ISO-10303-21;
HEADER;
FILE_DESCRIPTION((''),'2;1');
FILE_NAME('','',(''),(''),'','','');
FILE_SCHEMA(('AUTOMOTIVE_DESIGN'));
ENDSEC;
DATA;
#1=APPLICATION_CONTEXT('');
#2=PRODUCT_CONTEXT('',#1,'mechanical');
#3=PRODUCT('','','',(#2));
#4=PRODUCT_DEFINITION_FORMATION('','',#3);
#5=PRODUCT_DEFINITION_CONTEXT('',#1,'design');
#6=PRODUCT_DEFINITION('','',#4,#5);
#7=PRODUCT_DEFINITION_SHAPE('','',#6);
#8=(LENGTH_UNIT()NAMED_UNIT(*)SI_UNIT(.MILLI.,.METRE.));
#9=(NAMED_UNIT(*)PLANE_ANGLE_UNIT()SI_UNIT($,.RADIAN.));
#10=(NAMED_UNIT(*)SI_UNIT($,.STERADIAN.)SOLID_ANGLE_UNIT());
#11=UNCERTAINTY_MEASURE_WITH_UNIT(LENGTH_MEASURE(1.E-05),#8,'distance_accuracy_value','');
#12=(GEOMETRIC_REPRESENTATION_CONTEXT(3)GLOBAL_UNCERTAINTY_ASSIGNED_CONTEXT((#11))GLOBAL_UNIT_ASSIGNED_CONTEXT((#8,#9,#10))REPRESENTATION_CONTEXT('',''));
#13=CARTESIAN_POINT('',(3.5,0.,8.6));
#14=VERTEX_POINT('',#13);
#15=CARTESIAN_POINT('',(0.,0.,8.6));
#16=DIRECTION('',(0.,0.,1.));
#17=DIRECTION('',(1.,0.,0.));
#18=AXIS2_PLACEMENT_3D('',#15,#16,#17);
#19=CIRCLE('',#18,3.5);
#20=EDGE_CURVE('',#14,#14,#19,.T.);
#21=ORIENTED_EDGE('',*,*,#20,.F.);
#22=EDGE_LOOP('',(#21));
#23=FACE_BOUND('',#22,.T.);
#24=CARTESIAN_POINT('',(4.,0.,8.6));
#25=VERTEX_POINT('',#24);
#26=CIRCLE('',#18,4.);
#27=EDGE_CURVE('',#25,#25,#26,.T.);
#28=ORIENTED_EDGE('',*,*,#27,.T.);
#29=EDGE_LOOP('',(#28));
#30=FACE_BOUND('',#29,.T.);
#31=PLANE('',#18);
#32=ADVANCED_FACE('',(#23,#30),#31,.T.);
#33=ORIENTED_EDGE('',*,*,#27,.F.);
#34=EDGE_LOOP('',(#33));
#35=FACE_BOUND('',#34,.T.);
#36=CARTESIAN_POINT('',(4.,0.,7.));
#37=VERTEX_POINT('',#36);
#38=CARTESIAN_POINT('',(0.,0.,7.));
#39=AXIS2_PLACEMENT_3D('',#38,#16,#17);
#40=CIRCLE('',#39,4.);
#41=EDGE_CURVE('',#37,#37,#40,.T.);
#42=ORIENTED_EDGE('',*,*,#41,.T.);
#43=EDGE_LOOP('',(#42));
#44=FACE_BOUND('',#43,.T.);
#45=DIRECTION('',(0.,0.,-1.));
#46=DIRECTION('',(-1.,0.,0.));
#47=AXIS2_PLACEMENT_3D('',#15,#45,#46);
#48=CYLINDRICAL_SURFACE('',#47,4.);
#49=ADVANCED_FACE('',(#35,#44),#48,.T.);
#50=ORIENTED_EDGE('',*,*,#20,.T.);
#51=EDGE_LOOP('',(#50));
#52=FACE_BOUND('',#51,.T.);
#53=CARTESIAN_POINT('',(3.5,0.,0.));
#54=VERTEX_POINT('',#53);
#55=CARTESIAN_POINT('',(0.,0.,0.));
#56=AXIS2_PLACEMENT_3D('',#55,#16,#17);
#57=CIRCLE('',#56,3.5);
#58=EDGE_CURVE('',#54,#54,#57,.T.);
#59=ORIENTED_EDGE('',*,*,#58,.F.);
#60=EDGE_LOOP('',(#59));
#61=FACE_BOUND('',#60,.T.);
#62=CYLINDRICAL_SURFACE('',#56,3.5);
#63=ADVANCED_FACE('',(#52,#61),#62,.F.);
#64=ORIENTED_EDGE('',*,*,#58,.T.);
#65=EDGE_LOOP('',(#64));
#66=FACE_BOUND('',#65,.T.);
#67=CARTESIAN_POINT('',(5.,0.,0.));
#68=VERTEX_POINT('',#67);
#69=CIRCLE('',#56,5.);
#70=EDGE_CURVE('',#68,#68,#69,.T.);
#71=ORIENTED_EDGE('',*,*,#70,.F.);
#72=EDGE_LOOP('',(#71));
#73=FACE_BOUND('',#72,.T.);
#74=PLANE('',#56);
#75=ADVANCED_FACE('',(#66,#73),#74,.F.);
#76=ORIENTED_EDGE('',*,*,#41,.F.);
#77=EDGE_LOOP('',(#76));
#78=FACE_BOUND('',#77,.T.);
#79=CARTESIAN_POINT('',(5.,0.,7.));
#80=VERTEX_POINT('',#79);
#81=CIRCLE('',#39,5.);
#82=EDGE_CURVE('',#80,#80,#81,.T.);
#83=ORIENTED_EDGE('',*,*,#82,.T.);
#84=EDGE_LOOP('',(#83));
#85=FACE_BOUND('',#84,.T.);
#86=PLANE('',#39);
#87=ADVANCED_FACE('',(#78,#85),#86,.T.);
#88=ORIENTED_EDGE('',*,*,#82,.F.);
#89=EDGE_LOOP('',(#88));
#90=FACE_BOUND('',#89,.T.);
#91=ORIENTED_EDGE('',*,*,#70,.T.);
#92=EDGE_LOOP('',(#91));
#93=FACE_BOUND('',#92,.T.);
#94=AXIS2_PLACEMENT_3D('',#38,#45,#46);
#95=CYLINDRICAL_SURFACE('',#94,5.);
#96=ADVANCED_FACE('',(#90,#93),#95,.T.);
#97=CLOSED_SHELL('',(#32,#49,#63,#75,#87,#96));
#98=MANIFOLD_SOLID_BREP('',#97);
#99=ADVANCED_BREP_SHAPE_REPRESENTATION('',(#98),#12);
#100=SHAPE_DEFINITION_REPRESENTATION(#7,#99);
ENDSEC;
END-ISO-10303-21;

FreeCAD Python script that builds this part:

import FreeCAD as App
import Part
import Sketcher
from FreeCAD import Vector
Q = App.Units.Quantity

doc = App.newDocument("Part")
body = doc.addObject("PartDesign::Body", "Body")

# Sketch on XY plane
sketch1 = body.newObject("Sketcher::SketchObject", "Sketch")
sketch1.AttachmentSupport = (doc.getObject("XY_Plane"), [""])
sketch1.MapMode = "FlatFace"
sketch1.addGeometry(Part.Circle(Vector(0, 0, 0), Vector(0, 0, 1), 5), False)
sketch1.addConstraint([
    Sketcher.Constraint("Coincident", 0, 3, -1, 1),
    Sketcher.Constraint("Diameter", 0, Q("10 mm")),
])
pad1 = body.newObject("PartDesign::Pad", "Pad")
pad1.Profile = sketch1
pad1.Length = 7

# Sketch on XY plane
sketch2 = body.newObject("Sketcher::SketchObject", "Sketch001")
sketch2.AttachmentSupport = (doc.getObject("XY_Plane"), [""])
sketch2.MapMode = "FlatFace"
sketch2.AttachmentOffset = App.Placement(Vector(0, 0, 7), App.Rotation())
sketch2.addGeometry(Part.Circle(Vector(0, 0, 0), Vector(0, 0, 1), 3.5), False)
sketch2.addConstraint([
    Sketcher.Constraint("Coincident", 0, 3, -1, 1),
    Sketcher.Constraint("Diameter", 0, Q("7 mm")),
])
pocket1 = body.newObject("PartDesign::Pocket", "Pocket")
pocket1.Profile = sketch2
pocket1.Type = "ThroughAll"

# Sketch on XY plane
sketch3 = body.newObject("Sketcher::SketchObject", "Sketch002")
sketch3.AttachmentSupport = (doc.getObject("XY_Plane"), [""])
sketch3.MapMode = "FlatFace"
sketch3.AttachmentOffset = App.Placement(Vector(0, 0, 8.6), App.Rotation())
sketch3.addGeometry([
    Part.Circle(Vector(0, 0, 0), Vector(0, 0, 1), 4),
    Part.Circle(Vector(0, 0, 0), Vector(0, 0, 1), 3.5),
], False)
sketch3.addConstraint([
    Sketcher.Constraint("Coincident", 0, 3, -1, 1),
    Sketcher.Constraint("Coincident", 1, 3, -1, 1),
    Sketcher.Constraint("Diameter", 0, Q("8 mm")),
    Sketcher.Constraint("Diameter", 1, Q("7 mm")),
])
pad2 = body.newObject("PartDesign::Pad", "Pad001")
pad2.Profile = sketch3
pad2.Length = 1.6
pad2.Reversed = True

doc.recompute()
